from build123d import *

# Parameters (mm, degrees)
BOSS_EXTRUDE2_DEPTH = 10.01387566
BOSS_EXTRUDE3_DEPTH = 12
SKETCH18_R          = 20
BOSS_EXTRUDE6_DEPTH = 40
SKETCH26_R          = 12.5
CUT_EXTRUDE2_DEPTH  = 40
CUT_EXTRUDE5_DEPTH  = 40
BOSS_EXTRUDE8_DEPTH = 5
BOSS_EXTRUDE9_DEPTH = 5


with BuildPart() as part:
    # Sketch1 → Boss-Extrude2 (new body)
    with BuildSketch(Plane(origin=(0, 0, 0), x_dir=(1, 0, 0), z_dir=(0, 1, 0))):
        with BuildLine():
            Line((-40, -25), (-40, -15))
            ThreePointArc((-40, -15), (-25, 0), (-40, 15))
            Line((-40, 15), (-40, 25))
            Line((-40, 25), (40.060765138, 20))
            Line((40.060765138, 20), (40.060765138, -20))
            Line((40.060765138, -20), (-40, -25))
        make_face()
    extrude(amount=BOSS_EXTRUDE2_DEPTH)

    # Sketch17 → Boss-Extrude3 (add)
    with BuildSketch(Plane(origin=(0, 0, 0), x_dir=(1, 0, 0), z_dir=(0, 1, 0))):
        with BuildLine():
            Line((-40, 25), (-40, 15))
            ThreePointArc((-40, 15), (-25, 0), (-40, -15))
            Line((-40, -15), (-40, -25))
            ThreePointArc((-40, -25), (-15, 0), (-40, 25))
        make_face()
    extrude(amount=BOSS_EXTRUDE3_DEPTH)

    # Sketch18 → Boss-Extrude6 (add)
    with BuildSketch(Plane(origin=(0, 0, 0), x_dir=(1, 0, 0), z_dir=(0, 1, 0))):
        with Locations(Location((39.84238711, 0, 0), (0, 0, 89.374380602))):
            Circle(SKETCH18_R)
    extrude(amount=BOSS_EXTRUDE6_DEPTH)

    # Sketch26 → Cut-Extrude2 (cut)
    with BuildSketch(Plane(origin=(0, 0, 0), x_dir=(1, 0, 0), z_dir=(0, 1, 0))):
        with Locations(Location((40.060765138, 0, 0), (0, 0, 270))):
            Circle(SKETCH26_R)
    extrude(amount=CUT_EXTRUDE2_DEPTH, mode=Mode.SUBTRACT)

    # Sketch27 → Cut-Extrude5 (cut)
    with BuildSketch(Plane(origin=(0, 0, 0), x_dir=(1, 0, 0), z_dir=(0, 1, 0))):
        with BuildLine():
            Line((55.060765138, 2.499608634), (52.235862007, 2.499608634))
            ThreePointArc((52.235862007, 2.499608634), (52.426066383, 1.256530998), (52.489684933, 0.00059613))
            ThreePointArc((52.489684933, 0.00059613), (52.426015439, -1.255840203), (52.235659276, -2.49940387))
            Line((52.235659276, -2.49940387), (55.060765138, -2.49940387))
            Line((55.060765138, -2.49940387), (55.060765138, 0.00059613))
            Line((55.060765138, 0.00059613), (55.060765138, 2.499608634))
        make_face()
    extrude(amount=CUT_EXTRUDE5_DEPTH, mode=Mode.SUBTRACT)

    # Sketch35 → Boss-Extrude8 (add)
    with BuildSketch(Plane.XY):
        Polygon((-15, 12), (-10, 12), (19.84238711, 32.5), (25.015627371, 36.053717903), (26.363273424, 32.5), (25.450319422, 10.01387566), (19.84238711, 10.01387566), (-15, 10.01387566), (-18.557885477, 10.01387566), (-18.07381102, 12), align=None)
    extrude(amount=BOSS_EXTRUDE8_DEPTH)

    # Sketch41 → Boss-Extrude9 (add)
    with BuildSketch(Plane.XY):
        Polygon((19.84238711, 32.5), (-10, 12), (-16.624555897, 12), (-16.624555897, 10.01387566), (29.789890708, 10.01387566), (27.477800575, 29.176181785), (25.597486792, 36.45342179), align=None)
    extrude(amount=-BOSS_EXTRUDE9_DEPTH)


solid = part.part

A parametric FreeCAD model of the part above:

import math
import FreeCAD as App
import Part
import Sketcher
from FreeCAD import Vector
Q = App.Units.Quantity

doc = App.newDocument("Part")
body = doc.addObject("PartDesign::Body", "Body")

sketch1 = body.newObject("Sketcher::SketchObject", "Sketch")
sketch1.AttachmentSupport = (doc.getObject("XZ_Plane"), [""])
sketch1.MapMode = "FlatFace"
sketch1.addGeometry(Part.LineSegment(Vector(-40, 15, 0), Vector(-40, 25, 0)), False)
sketch1.addGeometry(Part.LineSegment(Vector(-40, 25, 0), Vector(40.060765, 20, 0)), False)
sketch1.addGeometry(Part.LineSegment(Vector(40.060765, 20, 0), Vector(40.060765, -20, 0)), False)
sketch1.addGeometry(Part.LineSegment(Vector(40.060765, -20, 0), Vector(-40, -25, 0)), False)
sketch1.addGeometry(Part.LineSegment(Vector(-40, -25, 0), Vector(-40, -15, 0)), False)
sketch1.addGeometry(Part.ArcOfCircle(Part.Circle(Vector(-40, 0, 0), Vector(0, 0, 1), 15), math.radians(-90), math.radians(90)), False)
sketch1.addConstraint(Sketcher.Constraint("Coincident", 0, 2, 1, 1))
sketch1.addConstraint(Sketcher.Constraint("Coincident", 1, 2, 2, 1))
sketch1.addConstraint(Sketcher.Constraint("Coincident", 2, 2, 3, 1))
sketch1.addConstraint(Sketcher.Constraint("Coincident", 3, 2, 4, 1))
sketch1.addConstraint(Sketcher.Constraint("Coincident", 4, 2, 5, 1))
sketch1.addConstraint(Sketcher.Constraint("Coincident", 5, 2, 0, 1))
sketch1.addConstraint(Sketcher.Constraint("Vertical", 0))
sketch1.addConstraint(Sketcher.Constraint("Vertical", 2))
sketch1.addConstraint(Sketcher.Constraint("Vertical", 4))
sketch1.addConstraint(Sketcher.Constraint("Symmetric", 0, 2, 3, 2, -1))
sketch1.addConstraint(Sketcher.Constraint("PointOnObject", 5, 3, -1))
sketch1.addConstraint(Sketcher.Constraint("Vertical", 5, 3, 0, 2))
sketch1.addConstraint(Sketcher.Constraint("Equal", 1, 3))
sketch1.addConstraint(Sketcher.Constraint("Radius", 5, Q("15 mm")))
sketch1.addConstraint(Sketcher.Constraint("DistanceY", 0, 1, 0, 2, Q("10 mm")))
sketch1.addConstraint(Sketcher.Constraint("DistanceY", 2, 2, 2, 1, Q("40 mm")))
sketch1.addConstraint(Sketcher.Constraint("DistanceX", 5, 3, -1, 1, Q("40 mm")))
sketch1.addConstraint(Sketcher.Constraint("Distance", 1, Q("80.216745 mm")))
pad1 = body.newObject("PartDesign::Pad", "Pad")
pad1.Profile = sketch1
pad1.Length = 10.013876
pad1.Reversed = True

sketch2 = body.newObject("Sketcher::SketchObject", "Sketch001")
sketch2.AttachmentSupport = (doc.getObject("XZ_Plane"), [""])
sketch2.MapMode = "FlatFace"
sketch2.addGeometry(Part.LineSegment(Vector(-40, -25, 0), Vector(-40, -15, 0)), False)
sketch2.addGeometry(Part.ArcOfCircle(Part.Circle(Vector(-40, 0, 0), Vector(0, 0, 1), 15), math.radians(-90), math.radians(90)), False)
sketch2.addGeometry(Part.LineSegment(Vector(-40, 15, 0), Vector(-40, 25, 0)), False)
sketch2.addGeometry(Part.ArcOfCircle(Part.Circle(Vector(-40, 0, 0), Vector(0, 0, 1), 25), math.radians(-90), math.radians(90)), False)
sketch2.addConstraint(Sketcher.Constraint("Coincident", 0, 2, 1, 1))
sketch2.addConstraint(Sketcher.Constraint("Coincident", 1, 2, 2, 1))
sketch2.addConstraint(Sketcher.Constraint("Coincident", 2, 2, 3, 2))
sketch2.addConstraint(Sketcher.Constraint("Coincident", 3, 1, 0, 1))
sketch2.addConstraint(Sketcher.Constraint("Vertical", 0))
sketch2.addConstraint(Sketcher.Constraint("Vertical", 2))
sketch2.addConstraint(Sketcher.Constraint("Coincident", 3, 3, 1, 3))
sketch2.addConstraint(Sketcher.Constraint("Symmetric", 0, 2, 1, 2, -1))
sketch2.addConstraint(Sketcher.Constraint("Vertical", 3, 3, 0, 2))
sketch2.addConstraint(Sketcher.Constraint("Radius", 1, Q("15 mm")))
sketch2.addConstraint(Sketcher.Constraint("Radius", 3, Q("25 mm")))
sketch2.addConstraint(Sketcher.Constraint("DistanceX", 1, 3, -1, 1, Q("40 mm")))
pad2 = body.newObject("PartDesign::Pad", "Pad001")
pad2.Profile = sketch2
pad2.Length = 12
pad2.Reversed = True

sketch3 = body.newObject("Sketcher::SketchObject", "Sketch002")
sketch3.AttachmentSupport = (doc.getObject("XZ_Plane"), [""])
sketch3.MapMode = "FlatFace"
sketch3.addGeometry(Part.Circle(Vector(39.842387, 0, 0), Vector(0, 0, 1), 20), False)
sketch3.addConstraint(Sketcher.Constraint("PointOnObject", 0, 3, -1))
sketch3.addConstraint(Sketcher.Constraint("Diameter", 0, Q("40 mm")))
sketch3.addConstraint(Sketcher.Constraint("DistanceX", -1, 1, 0, 3, Q("39.842387 mm")))
pad3 = body.newObject("PartDesign::Pad", "Pad002")
pad3.Profile = sketch3
pad3.Length = 40
pad3.Reversed = True

sketch4 = body.newObject("Sketcher::SketchObject", "Sketch003")
sketch4.AttachmentSupport = (doc.getObject("XZ_Plane"), [""])
sketch4.MapMode = "FlatFace"
sketch4.addGeometry(Part.Circle(Vector(40.060765, 0, 0), Vector(0, 0, 1), 12.5), False)
sketch4.addConstraint(Sketcher.Constraint("PointOnObject", 0, 3, -1))
sketch4.addConstraint(Sketcher.Constraint("Diameter", 0, Q("25 mm")))
sketch4.addConstraint(Sketcher.Constraint("DistanceX", -1, 1, 0, 3, Q("40.060765 mm")))
pocket1 = body.newObject("PartDesign::Pocket", "Pocket")
pocket1.Profile = sketch4
pocket1.Length = 40

sketch5 = body.newObject("Sketcher::SketchObject", "Sketch004")
sketch5.AttachmentSupport = (doc.getObject("XZ_Plane"), [""])
sketch5.MapMode = "FlatFace"
sketch5.addGeometry(Part.LineSegment(Vector(55.060765, -2.499609, 0), Vector(52.235862, -2.499609, 0)), False)
sketch5.addGeometry(Part.ArcOfCircle(Part.Circle(Vector(40.060765, -0.000596, 0), Vector(0, 0, 1), 12.42892), math.radians(-11.599205), math.radians(0)), False)
sketch5.addGeometry(Part.ArcOfCircle(Part.Circle(Vector(40.060765, -0.000596, 0), Vector(0, 0, 1), 12.42892), math.radians(0), math.radians(11.603853)), False)
sketch5.addGeometry(Part.LineSegment(Vector(52.235659, 2.499404, 0), Vector(55.060765, 2.499404, 0)), False)
sketch5.addGeometry(Part.LineSegment(Vector(55.060765, 2.499404, 0), Vector(55.060765, -2.499609, 0)), False)
sketch5.addConstraint(Sketcher.Constraint("Coincident", 0, 2, 1, 1))
sketch5.addConstraint(Sketcher.Constraint("Tangent", 1, 2, 2, 1))
sketch5.addConstraint(Sketcher.Constraint("Coincident", 2, 2, 3, 1))
sketch5.addConstraint(Sketcher.Constraint("Coincident", 3, 2, 4, 1))
sketch5.addConstraint(Sketcher.Constraint("Coincident", 4, 2, 0, 1))
sketch5.addConstraint(Sketcher.Constraint("Horizontal", 0))
sketch5.addConstraint(Sketcher.Constraint("Horizontal", 3))
sketch5.addConstraint(Sketcher.Constraint("Vertical", 4))
sketch5.addConstraint(Sketcher.Constraint("Equal", 1, 2))
sketch5.addConstraint(Sketcher.Constraint("Horizontal", 2, 3, 1, 2))
sketch5.addConstraint(Sketcher.Constraint("DistanceX", 1, 3, 3, 2, Q("15 mm")))
sketch5.addConstraint(Sketcher.Constraint("DistanceY", 1, 2, 2, 2, Q("2.5 mm")))
sketch5.addConstraint(Sketcher.Constraint("Radius", 1, Q("12.42892 mm")))
sketch5.addConstraint(Sketcher.Constraint("DistanceX", 0, 2, 0, 1, Q("2.824903 mm")))
sketch5.addConstraint(Sketcher.Constraint("DistanceY", 0, 2, -1, 1, Q("2.499609 mm")))
sketch5.addConstraint(Sketcher.Constraint("DistanceX", -1, 1, 2, 2, Q("52.235659 mm")))
pocket2 = body.newObject("PartDesign::Pocket", "Pocket001")
pocket2.Profile = sketch5
pocket2.Length = 40

sketch6 = body.newObject("Sketcher::SketchObject", "Sketch005")
sketch6.AttachmentSupport = (doc.getObject("XY_Plane"), [""])
sketch6.MapMode = "FlatFace"
sketch6.addGeometry(Part.LineSegment(Vector(-10, 12, 0), Vector(-18.073811, 12, 0)), False)
sketch6.addGeometry(Part.LineSegment(Vector(-18.073811, 12, 0), Vector(-18.557885, 10.013876, 0)), False)
sketch6.addGeometry(Part.LineSegment(Vector(-18.557885, 10.013876, 0), Vector(25.450319, 10.013876, 0)), False)
sketch6.addGeometry(Part.LineSegment(Vector(25.450319, 10.013876, 0), Vector(26.363273, 32.5, 0)), False)
sketch6.addGeometry(Part.LineSegment(Vector(26.363273, 32.5, 0), Vector(25.015627, 36.053718, 0)), False)
sketch6.addGeometry(Part.LineSegment(Vector(25.015627, 36.053718, 0), Vector(19.842387, 32.5, 0)), False)
sketch6.addGeometry(Part.LineSegment(Vector(19.842387, 32.5, 0), Vector(-10, 12, 0)), False)
sketch6.addConstraint(Sketcher.Constraint("Coincident", 0, 2, 1, 1))
sketch6.addConstraint(Sketcher.Constraint("Coincident", 1, 2, 2, 1))
sketch6.addConstraint(Sketcher.Constraint("Coincident", 2, 2, 3, 1))
sketch6.addConstraint(Sketcher.Constraint("Coincident", 3, 2, 4, 1))
sketch6.addConstraint(Sketcher.Constraint("Coincident", 4, 2, 5, 1))
sketch6.addConstraint(Sketcher.Constraint("Coincident", 5, 2, 6, 1))
sketch6.addConstraint(Sketcher.Constraint("Coincident", 6, 2, 0, 1))
sketch6.addConstraint(Sketcher.Constraint("Horizontal", 0))
sketch6.addConstraint(Sketcher.Constraint("Horizontal", 2))
sketch6.addConstraint(Sketcher.Constraint("Parallel", 5, 6))
sketch6.addConstraint(Sketcher.Constraint("Horizontal", 3, 2, 5, 2))
sketch6.addConstraint(Sketcher.Constraint("DistanceY", -1, 1, 0, 2, Q("12 mm")))
sketch6.addConstraint(Sketcher.Constraint("DistanceX", 6, 2, -1, 1, Q("10 mm")))
sketch6.addConstraint(Sketcher.Constraint("DistanceY", -1, 1, 3, 2, Q("32.5 mm")))
sketch6.addConstraint(Sketcher.Constraint("DistanceX", 0, 2, 0, 1, Q("8.073811 mm")))
sketch6.addConstraint(Sketcher.Constraint("DistanceX", 0, 2, 5, 2, Q("37.916198 mm")))
sketch6.addConstraint(Sketcher.Constraint("Distance", 3, Q("22.50465 mm")))
sketch6.addConstraint(Sketcher.Constraint("Distance", 5, Q("6.276251 mm")))
sketch6.addConstraint(Sketcher.Constraint("DistanceX", 2, 1, 2, 2, Q("44.008205 mm")))
sketch6.addConstraint(Sketcher.Constraint("DistanceX", -1, 1, 2, 2, Q("25.450319 mm")))
sketch6.addConstraint(Sketcher.Constraint("DistanceX", 1, 2, 3, 2, Q("44.921159 mm")))
pad4 = body.newObject("PartDesign::Pad", "Pad003")
pad4.Profile = sketch6
pad4.Length = 5

sketch7 = body.newObject("Sketcher::SketchObject", "Sketch006")
sketch7.AttachmentSupport = (doc.getObject("XY_Plane"), [""])
sketch7.MapMode = "FlatFace"
sketch7.addGeometry(Part.LineSegment(Vector(19.842387, 32.5, 0), Vector(-10, 12, 0)), False)
sketch7.addGeometry(Part.LineSegment(Vector(-10, 12, 0), Vector(-16.624556, 12, 0)), False)
sketch7.addGeometry(Part.LineSegment(Vector(-16.624556, 12, 0), Vector(-16.624556, 10.013876, 0)), False)
sketch7.addGeometry(Part.LineSegment(Vector(-16.624556, 10.013876, 0), Vector(29.789891, 10.013876, 0)), False)
sketch7.addGeometry(Part.LineSegment(Vector(29.789891, 10.013876, 0), Vector(27.477801, 29.176182, 0)), False)
sketch7.addGeometry(Part.LineSegment(Vector(27.477801, 29.176182, 0), Vector(25.597487, 36.453422, 0)), False)
sketch7.addGeometry(Part.LineSegment(Vector(25.597487, 36.453422, 0), Vector(19.842387, 32.5, 0)), False)
sketch7.addConstraint(Sketcher.Constraint("Coincident", 0, 2, 1, 1))
sketch7.addConstraint(Sketcher.Constraint("Coincident", 1, 2, 2, 1))
sketch7.addConstraint(Sketcher.Constraint("Coincident", 2, 2, 3, 1))
sketch7.addConstraint(Sketcher.Constraint("Coincident", 3, 2, 4, 1))
sketch7.addConstraint(Sketcher.Constraint("Coincident", 4, 2, 5, 1))
sketch7.addConstraint(Sketcher.Constraint("Coincident", 5, 2, 6, 1))
sketch7.addConstraint(Sketcher.Constraint("Coincident", 6, 2, 0, 1))
sketch7.addConstraint(Sketcher.Constraint("Horizontal", 1))
sketch7.addConstraint(Sketcher.Constraint("Vertical", 2))
sketch7.addConstraint(Sketcher.Constraint("Horizontal", 3))
sketch7.addConstraint(Sketcher.Constraint("Parallel", 0, 6))
sketch7.addConstraint(Sketcher.Constraint("DistanceX", 0, 2, -1, 1, Q("10 mm")))
sketch7.addConstraint(Sketcher.Constraint("DistanceY", -1, 1, 0, 2, Q("12 mm")))
sketch7.addConstraint(Sketcher.Constraint("DistanceY", -1, 1, 6, 2, Q("32.5 mm")))
sketch7.addConstraint(Sketcher.Constraint("DistanceX", -1, 1, 4, 2, Q("27.477801 mm")))
sketch7.addConstraint(Sketcher.Constraint("DistanceX", 6, 2, 5, 2, Q("5.7551 mm")))
sketch7.addConstraint(Sketcher.Constraint("Distance", 0, Q("36.205222 mm")))
sketch7.addConstraint(Sketcher.Constraint("Distance", 4, Q("19.301288 mm")))
sketch7.addConstraint(Sketcher.Constraint("DistanceX", 1, 2, 1, 1, Q("6.624556 mm")))
sketch7.addConstraint(Sketcher.Constraint("DistanceX", 3, 1, 3, 2, Q("46.414447 mm")))
sketch7.addConstraint(Sketcher.Constraint("DistanceY", 2, 2, 2, 1, Q("1.986124 mm")))
pad5 = body.newObject("PartDesign::Pad", "Pad004")
pad5.Profile = sketch7
pad5.Length = 5
pad5.Reversed = True

doc.recompute()
